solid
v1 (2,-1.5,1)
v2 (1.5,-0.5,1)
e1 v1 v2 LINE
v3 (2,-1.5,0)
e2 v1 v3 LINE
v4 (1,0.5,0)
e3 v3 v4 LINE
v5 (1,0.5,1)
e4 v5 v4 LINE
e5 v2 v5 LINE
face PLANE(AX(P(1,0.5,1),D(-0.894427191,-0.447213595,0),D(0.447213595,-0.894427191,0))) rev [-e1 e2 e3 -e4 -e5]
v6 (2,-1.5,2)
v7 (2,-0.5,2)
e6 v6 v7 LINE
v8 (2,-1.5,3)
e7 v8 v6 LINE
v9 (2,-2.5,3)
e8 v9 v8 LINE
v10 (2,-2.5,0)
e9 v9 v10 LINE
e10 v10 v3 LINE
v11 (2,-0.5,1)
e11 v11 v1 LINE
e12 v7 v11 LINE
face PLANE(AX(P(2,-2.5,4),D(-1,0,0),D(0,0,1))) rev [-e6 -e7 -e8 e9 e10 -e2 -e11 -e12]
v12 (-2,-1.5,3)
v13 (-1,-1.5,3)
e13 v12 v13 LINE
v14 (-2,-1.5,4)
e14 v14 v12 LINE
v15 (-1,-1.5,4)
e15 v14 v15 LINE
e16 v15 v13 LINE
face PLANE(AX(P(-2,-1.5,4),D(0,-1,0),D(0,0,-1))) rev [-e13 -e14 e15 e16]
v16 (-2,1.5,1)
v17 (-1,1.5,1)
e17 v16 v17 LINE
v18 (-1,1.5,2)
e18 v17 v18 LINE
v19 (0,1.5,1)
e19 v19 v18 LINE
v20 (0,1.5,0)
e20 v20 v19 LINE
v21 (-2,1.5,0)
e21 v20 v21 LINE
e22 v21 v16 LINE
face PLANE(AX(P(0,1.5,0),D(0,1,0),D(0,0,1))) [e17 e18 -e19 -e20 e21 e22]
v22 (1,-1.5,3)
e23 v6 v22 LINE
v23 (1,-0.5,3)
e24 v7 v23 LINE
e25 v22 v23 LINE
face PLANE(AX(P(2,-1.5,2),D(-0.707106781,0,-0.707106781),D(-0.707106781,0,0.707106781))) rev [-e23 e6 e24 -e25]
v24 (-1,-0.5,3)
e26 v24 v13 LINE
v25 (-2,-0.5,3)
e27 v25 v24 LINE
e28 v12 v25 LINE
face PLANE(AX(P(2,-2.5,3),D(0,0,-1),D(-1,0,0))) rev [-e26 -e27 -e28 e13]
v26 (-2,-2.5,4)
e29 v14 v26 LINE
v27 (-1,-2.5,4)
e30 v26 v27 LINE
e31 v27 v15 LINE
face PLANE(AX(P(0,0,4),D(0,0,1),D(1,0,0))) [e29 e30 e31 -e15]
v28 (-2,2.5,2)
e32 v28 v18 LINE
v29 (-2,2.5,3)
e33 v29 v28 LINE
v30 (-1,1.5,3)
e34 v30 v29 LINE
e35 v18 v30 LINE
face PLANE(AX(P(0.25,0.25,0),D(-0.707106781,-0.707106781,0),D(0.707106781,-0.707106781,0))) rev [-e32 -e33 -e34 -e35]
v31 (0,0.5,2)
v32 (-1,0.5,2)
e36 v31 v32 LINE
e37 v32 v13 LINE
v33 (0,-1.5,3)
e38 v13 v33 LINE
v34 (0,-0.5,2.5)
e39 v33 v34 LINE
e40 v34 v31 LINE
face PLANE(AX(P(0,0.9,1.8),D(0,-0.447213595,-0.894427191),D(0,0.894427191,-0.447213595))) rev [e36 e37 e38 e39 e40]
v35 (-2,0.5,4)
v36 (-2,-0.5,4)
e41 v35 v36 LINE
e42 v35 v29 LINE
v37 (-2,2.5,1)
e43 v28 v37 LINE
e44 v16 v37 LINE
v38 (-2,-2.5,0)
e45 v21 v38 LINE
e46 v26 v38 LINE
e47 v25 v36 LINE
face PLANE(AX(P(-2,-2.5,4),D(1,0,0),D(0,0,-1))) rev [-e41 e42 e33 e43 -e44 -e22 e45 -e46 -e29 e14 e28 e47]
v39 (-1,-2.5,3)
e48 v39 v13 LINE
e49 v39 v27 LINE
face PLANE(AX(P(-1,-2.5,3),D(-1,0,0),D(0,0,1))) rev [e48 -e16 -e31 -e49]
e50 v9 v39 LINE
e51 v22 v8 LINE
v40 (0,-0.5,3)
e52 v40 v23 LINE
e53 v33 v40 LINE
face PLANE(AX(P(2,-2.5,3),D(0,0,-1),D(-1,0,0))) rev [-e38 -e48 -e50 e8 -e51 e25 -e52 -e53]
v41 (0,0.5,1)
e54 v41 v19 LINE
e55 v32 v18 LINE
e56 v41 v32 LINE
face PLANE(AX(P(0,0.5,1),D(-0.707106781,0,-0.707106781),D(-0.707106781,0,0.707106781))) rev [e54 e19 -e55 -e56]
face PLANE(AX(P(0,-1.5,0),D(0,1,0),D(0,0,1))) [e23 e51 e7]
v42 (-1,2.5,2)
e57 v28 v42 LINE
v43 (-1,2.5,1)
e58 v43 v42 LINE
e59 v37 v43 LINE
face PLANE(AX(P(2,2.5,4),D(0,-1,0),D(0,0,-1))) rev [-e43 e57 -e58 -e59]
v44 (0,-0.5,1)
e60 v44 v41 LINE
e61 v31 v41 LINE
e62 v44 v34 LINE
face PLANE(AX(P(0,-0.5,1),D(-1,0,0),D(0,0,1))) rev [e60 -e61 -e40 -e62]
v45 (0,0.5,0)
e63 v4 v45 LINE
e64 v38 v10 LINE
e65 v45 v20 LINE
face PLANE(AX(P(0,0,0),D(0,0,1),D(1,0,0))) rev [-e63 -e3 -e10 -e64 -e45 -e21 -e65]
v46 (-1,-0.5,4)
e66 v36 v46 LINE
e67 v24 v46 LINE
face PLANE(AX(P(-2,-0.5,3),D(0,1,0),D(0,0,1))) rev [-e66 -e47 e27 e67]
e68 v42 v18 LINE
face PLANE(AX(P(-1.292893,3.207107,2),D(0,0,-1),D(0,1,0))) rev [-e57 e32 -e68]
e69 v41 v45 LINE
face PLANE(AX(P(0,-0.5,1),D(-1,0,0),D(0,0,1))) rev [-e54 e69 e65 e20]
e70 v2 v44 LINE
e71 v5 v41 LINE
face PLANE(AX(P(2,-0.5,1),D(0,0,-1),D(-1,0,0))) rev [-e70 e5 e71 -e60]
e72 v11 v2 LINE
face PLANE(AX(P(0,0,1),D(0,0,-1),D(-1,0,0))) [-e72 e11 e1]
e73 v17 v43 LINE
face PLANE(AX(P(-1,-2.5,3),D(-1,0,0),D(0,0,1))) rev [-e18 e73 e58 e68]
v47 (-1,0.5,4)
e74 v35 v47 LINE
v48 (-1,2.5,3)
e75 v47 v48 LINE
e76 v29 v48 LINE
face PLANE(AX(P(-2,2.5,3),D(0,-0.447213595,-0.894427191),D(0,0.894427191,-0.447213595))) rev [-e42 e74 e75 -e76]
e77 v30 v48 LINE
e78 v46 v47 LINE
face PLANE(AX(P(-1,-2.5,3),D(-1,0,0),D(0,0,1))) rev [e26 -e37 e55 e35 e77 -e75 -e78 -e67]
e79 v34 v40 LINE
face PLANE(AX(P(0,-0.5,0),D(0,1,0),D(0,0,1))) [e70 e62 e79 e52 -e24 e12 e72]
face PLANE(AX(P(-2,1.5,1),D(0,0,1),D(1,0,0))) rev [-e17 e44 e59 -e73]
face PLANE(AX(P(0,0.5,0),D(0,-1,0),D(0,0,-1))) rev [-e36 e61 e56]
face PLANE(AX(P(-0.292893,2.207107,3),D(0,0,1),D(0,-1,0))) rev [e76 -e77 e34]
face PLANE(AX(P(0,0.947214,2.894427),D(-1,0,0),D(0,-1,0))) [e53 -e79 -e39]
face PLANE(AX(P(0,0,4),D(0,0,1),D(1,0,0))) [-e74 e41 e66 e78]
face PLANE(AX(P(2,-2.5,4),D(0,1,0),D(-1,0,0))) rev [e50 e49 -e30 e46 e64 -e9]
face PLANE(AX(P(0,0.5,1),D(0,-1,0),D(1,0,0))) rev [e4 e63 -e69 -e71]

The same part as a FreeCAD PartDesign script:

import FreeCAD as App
import Part
import Sketcher


def add_polygon(sketch, points):
    """Adds a closed chain of lines whose ends are joined by coincident constraints."""
    first, n = sketch.GeometryCount, len(points)
    for a, b in zip(points, points[1:] + points[:1]):
        sketch.addGeometry(Part.LineSegment(App.Vector(*a, 0), App.Vector(*b, 0)), False)
    for i in range(n):
        sketch.addConstraint(Sketcher.Constraint("Coincident", first + i, 2, first + (i + 1) % n, 1))

doc = App.newDocument("Part")
body = doc.addObject("PartDesign::Body", "Body")

sketch1 = doc.addObject("Sketcher::SketchObject", "Sketch")
body.addObject(sketch1)
sketch1.AttachmentSupport = (doc.XY_Plane, [""])
sketch1.MapMode = "FlatFace"
add_polygon(sketch1, [(-2, 2.5), (-2, -2.5), (2, -2.5), (2, 2.5)])
sketch1.addConstraint([
    Sketcher.Constraint("Vertical", 0),
    Sketcher.Constraint("Horizontal", 1),
    Sketcher.Constraint("Vertical", 2),
    Sketcher.Constraint("Horizontal", 3),
    Sketcher.Constraint("Symmetric", 0, 2, 2, 2, -1, 1),
    Sketcher.Constraint("DistanceX", 1, 1, 1, 2, 4.0),
    Sketcher.Constraint("DistanceY", 0, 2, 0, 1, 5.0),
])
pad1 = doc.addObject("PartDesign::Pad", "Pad")
body.addObject(pad1)
pad1.Profile = sketch1
pad1.Length = 4

sketch2 = doc.addObject("Sketcher::SketchObject", "Sketch001")
body.addObject(sketch2)
sketch2.AttachmentSupport = (doc.XZ_Plane, [""])
sketch2.MapMode = "FlatFace"
sketch2.AttachmentOffset = App.Placement(App.Vector(0, 0, -2.5), App.Rotation())
add_polygon(sketch2, [(-1, 3), (-1, 4), (2, 4), (2, 3)])
sketch2.addConstraint([
    Sketcher.Constraint("Vertical", 0),
    Sketcher.Constraint("Horizontal", 1),
    Sketcher.Constraint("Vertical", 2),
    Sketcher.Constraint("Horizontal", 3),
    Sketcher.Constraint("DistanceX", 1, 1, 1, 2, 3.0),
    Sketcher.Constraint("DistanceY", 0, 1, 0, 2, 1.0),
    Sketcher.Constraint("DistanceX", 0, 2, -1, 1, 1.0),
    Sketcher.Constraint("DistanceY", -1, 1, 0, 2, 4.0),
])
pocket1 = doc.addObject("PartDesign::Pocket", "Pocket")
body.addObject(pocket1)
pocket1.Profile = sketch2
pocket1.Type = "ThroughAll"
pocket1.Reversed = True

sketch3 = doc.addObject("Sketcher::SketchObject", "Sketch002")
body.addObject(sketch3)
sketch3.AttachmentSupport = (doc.YZ_Plane, [""])
sketch3.MapMode = "FlatFace"
sketch3.AttachmentOffset = App.Placement(App.Vector(0, 0, -1), App.Rotation())
add_polygon(sketch3, [(-0.5, 4), (-1.5, 4), (-1.5, 3), (-0.5, 3)])
sketch3.addConstraint([
    Sketcher.Constraint("Horizontal", 0),
    Sketcher.Constraint("Vertical", 1),
    Sketcher.Constraint("Horizontal", 2),
    Sketcher.Constraint("Vertical", 3),
    Sketcher.Constraint("Equal", 2, 1),
    Sketcher.Constraint("DistanceX", 0, 2, 0, 1, 1.0),
    Sketcher.Constraint("DistanceY", -1, 1, 0, 2, 4.0),
    Sketcher.Constraint("DistanceX", 0, 2, -1, 1, 1.5),
])
pocket2 = doc.addObject("PartDesign::Pocket", "Pocket001")
body.addObject(pocket2)
pocket2.Profile = sketch3
pocket2.Length = 1

sketch4 = doc.addObject("Sketcher::SketchObject", "Sketch003")
body.addObject(sketch4)
sketch4.AttachmentSupport = (doc.YZ_Plane, [""])
sketch4.MapMode = "FlatFace"
sketch4.AttachmentOffset = App.Placement(App.Vector(0, 0, -1), App.Rotation())
add_polygon(sketch4, [(0.5, 4), (2.5, 3), (2.5, 4)])
sketch4.addConstraint([
    Sketcher.Constraint("Vertical", 1),
    Sketcher.Constraint("Horizontal", 2),
    Sketcher.Constraint("DistanceX", 2, 2, 2, 1, 2.0),
    Sketcher.Constraint("DistanceY", 1, 1, 1, 2, 1.0),
    Sketcher.Constraint("DistanceY", -1, 1, 0, 2, 3.0),
    Sketcher.Constraint("DistanceX", -1, 1, 0, 2, 2.5),
])
pocket3 = doc.addObject("PartDesign::Pocket", "Pocket002")
body.addObject(pocket3)
pocket3.Profile = sketch4
pocket3.Length = 1

sketch5 = doc.addObject("Sketcher::SketchObject", "Sketch004")
body.addObject(sketch5)
sketch5.AttachmentSupport = (doc.XZ_Plane, [""])
sketch5.MapMode = "FlatFace"
sketch5.AttachmentOffset = App.Placement(App.Vector(0, 0, -2.5), App.Rotation())
add_polygon(sketch5, [(-2, 0), (-2, 1), (-1, 1), (-1, 3), (2, 3), (2, 0)])
sketch5.addConstraint([
    Sketcher.Constraint("Vertical", 0),
    Sketcher.Constraint("Horizontal", 1),
    Sketcher.Constraint("Vertical", 2),
    Sketcher.Constraint("Horizontal", 3),
    Sketcher.Constraint("Vertical", 4),
    Sketcher.Constraint("Horizontal", 5),
    Sketcher.Constraint("Symmetric", 4, 2, 5, 2, -1, 1),
    Sketcher.Constraint("Equal", 1, 0),
    Sketcher.Constraint("Equal", 3, 4),
    Sketcher.Constraint("DistanceX", 1, 1, 1, 2, 1.0),
    Sketcher.Constraint("DistanceX", 3, 1, 3, 2, 3.0),
])
pocket4 = doc.addObject("PartDesign::Pocket", "Pocket003")
body.addObject(pocket4)
pocket4.Profile = sketch5
pocket4.Length = 1
pocket4.Reversed = True

sketch6 = doc.addObject("Sketcher::SketchObject", "Sketch005")
body.addObject(sketch6)
sketch6.AttachmentSupport = (doc.XZ_Plane, [""])
sketch6.MapMode = "FlatFace"
sketch6.AttachmentOffset = App.Placement(App.Vector(0, 0, -1.5), App.Rotation())
add_polygon(sketch6, [(0, 1), (0, 3), (2, 3), (2, 1)])
sketch6.addConstraint([
    Sketcher.Constraint("Vertical", 0),
    Sketcher.Constraint("Horizontal", 1),
    Sketcher.Constraint("Vertical", 2),
    Sketcher.Constraint("Horizontal", 3),
    Sketcher.Constraint("PointOnObject", 0, 2, -2),
    Sketcher.Constraint("Equal", 3, 0),
    Sketcher.Constraint("DistanceX", 1, 1, 1, 2, 2.0),
    Sketcher.Constraint("DistanceY", -1, 1, 0, 2, 3.0),
])
pocket5 = doc.addObject("PartDesign::Pocket", "Pocket004")
body.addObject(pocket5)
pocket5.Profile = sketch6
pocket5.Length = 2
pocket5.Reversed = True

sketch7 = doc.addObject("Sketcher::SketchObject", "Sketch006")
body.addObject(sketch7)
sketch7.AttachmentSupport = (doc.XZ_Plane, [""])
sketch7.MapMode = "FlatFace"
sketch7.AttachmentOffset = App.Placement(App.Vector(0, 0, 0.5), App.Rotation())
add_polygon(sketch7, [(2, 3), (2, 2), (1, 3)])
sketch7.addConstraint([
    Sketcher.Constraint("Vertical", 0),
    Sketcher.Constraint("Horizontal", 2),
    Sketcher.Constraint("Equal", 2, 0),
    Sketcher.Constraint("DistanceX", 2, 1, 2, 2, 1.0),
    Sketcher.Constraint("DistanceX", -1, 1, 0, 2, 2.0),
    Sketcher.Constraint("DistanceY", -1, 1, 0, 2, 2.0),
])
pocket6 = doc.addObject("PartDesign::Pocket", "Pocket005")
body.addObject(pocket6)
pocket6.Profile = sketch7
pocket6.Length = 1
pocket6.Reversed = True

sketch8 = doc.addObject("Sketcher::SketchObject", "Sketch007")
body.addObject(sketch8)
sketch8.AttachmentSupport = (doc.XY_Plane, [""])
sketch8.MapMode = "FlatFace"
add_polygon(sketch8, [(2, 1.5), (2, -1.5), (1, 0.5), (0, 0.5), (0, 1.5)])
sketch8.addConstraint([
    Sketcher.Constraint("Vertical", 0),
    Sketcher.Constraint("Horizontal", 2),
    Sketcher.Constraint("Vertical", 3),
    Sketcher.Constraint("Horizontal", 4),
    Sketcher.Constraint("PointOnObject", 2, 2, -2),
    Sketcher.Constraint("Equal", 2, 3),
    Sketcher.Constraint("DistanceX", 2, 2, 2, 1, 1.0),
    Sketcher.Constraint("DistanceX", 4, 1, 4, 2, 2.0),
    Sketcher.Constraint("DistanceY", 0, 2, 0, 1, 3.0),
    Sketcher.Constraint("DistanceY", 0, 2, -1, 1, 1.5),
])
pocket7 = doc.addObject("PartDesign::Pocket", "Pocket006")
body.addObject(pocket7)
pocket7.Profile = sketch8
pocket7.Length = 1
pocket7.Reversed = True

sketch9 = doc.addObject("Sketcher::SketchObject", "Sketch008")
body.addObject(sketch9)
sketch9.AttachmentSupport = (doc.XZ_Plane, [""])
sketch9.MapMode = "FlatFace"
sketch9.AttachmentOffset = App.Placement(App.Vector(0, 0, -1.5), App.Rotation())
add_polygon(sketch9, [(0, 1), (-1, 2), (-1, 3), (0, 3)])
sketch9.addConstraint([
    Sketcher.Constraint("Vertical", 1),
    Sketcher.Constraint("Horizontal", 2),
    Sketcher.Constraint("Vertical", 3),
    Sketcher.Constraint("PointOnObject", 2, 2, -2),
    Sketcher.Constraint("Equal", 2, 1),
    Sketcher.Constraint("DistanceX", 2, 1, 2, 2, 1.0),
    Sketcher.Constraint("DistanceY", 3, 2, 3, 1, 2.0),
    Sketcher.Constraint("DistanceY", -1, 1, 0, 2, 2.0),
])
pocket8 = doc.addObject("PartDesign::Pocket", "Pocket007")
body.addObject(pocket8)
pocket8.Profile = sketch9
pocket8.Length = 1
pocket8.Reversed = True

sketch10 = doc.addObject("Sketcher::SketchObject", "Sketch009")
body.addObject(sketch10)
sketch10.Placement = App.Placement(App.Vector(0, 0.9, 1.8), App.Rotation(App.Vector(1, 0, 0), App.Vector(0, 0.894427191, -0.447213595), App.Vector(0, 0.447213595, 0.894427191), "ZXY"))
add_polygon(sketch10, [(-1, -0.447214), (-1, -2.683282), (0, -2.683282), (0, -0.447214)])
sketch10.addConstraint([
    Sketcher.Constraint("Vertical", 0),
    Sketcher.Constraint("Horizontal", 1),
    Sketcher.Constraint("Vertical", 2),
    Sketcher.Constraint("Horizontal", 3),
    Sketcher.Constraint("PointOnObject", 1, 2, -2),
    Sketcher.Constraint("DistanceX", 1, 1, 1, 2, 1.0),
    Sketcher.Constraint("DistanceY", 0, 2, 0, 1, 2.236068),
    Sketcher.Constraint("DistanceY", 0, 2, -1, 1, 2.683282),
])
pocket9 = doc.addObject("PartDesign::Pocket", "Pocket008")
body.addObject(pocket9)
pocket9.Profile = sketch10
pocket9.Length = 1
pocket9.Reversed = True

sketch11 = doc.addObject("Sketcher::SketchObject", "Sketch010")
body.addObject(sketch11)
sketch11.Placement = App.Placement(App.Vector(0.25, 0.25, 0), App.Rotation(App.Vector(0, 0, 1), App.Vector(-0.707106781, 0.707106781, 0), App.Vector(-0.707106781, -0.707106781, 0), "ZXY"))
add_polygon(sketch11, [(2, 3.181981), (2, 1.767767), (3, 1.767767), (3, 3.181981)])
sketch11.addConstraint([
    Sketcher.Constraint("Vertical", 0),
    Sketcher.Constraint("Horizontal", 1),
    Sketcher.Constraint("Vertical", 2),
    Sketcher.Constraint("Horizontal", 3),
    Sketcher.Constraint("DistanceX", 1, 1, 1, 2, 1.0),
    Sketcher.Constraint("DistanceX", -1, 1, 0, 2, 2.0),
    Sketcher.Constraint("DistanceY", 0, 2, 0, 1, 1.414214),
    Sketcher.Constraint("DistanceY", -1, 1, 2, 2, 3.181981),
])
pocket10 = doc.addObject("PartDesign::Pocket", "Pocket009")
body.addObject(pocket10)
pocket10.Profile = sketch11
pocket10.Length = 1

doc.recompute()
